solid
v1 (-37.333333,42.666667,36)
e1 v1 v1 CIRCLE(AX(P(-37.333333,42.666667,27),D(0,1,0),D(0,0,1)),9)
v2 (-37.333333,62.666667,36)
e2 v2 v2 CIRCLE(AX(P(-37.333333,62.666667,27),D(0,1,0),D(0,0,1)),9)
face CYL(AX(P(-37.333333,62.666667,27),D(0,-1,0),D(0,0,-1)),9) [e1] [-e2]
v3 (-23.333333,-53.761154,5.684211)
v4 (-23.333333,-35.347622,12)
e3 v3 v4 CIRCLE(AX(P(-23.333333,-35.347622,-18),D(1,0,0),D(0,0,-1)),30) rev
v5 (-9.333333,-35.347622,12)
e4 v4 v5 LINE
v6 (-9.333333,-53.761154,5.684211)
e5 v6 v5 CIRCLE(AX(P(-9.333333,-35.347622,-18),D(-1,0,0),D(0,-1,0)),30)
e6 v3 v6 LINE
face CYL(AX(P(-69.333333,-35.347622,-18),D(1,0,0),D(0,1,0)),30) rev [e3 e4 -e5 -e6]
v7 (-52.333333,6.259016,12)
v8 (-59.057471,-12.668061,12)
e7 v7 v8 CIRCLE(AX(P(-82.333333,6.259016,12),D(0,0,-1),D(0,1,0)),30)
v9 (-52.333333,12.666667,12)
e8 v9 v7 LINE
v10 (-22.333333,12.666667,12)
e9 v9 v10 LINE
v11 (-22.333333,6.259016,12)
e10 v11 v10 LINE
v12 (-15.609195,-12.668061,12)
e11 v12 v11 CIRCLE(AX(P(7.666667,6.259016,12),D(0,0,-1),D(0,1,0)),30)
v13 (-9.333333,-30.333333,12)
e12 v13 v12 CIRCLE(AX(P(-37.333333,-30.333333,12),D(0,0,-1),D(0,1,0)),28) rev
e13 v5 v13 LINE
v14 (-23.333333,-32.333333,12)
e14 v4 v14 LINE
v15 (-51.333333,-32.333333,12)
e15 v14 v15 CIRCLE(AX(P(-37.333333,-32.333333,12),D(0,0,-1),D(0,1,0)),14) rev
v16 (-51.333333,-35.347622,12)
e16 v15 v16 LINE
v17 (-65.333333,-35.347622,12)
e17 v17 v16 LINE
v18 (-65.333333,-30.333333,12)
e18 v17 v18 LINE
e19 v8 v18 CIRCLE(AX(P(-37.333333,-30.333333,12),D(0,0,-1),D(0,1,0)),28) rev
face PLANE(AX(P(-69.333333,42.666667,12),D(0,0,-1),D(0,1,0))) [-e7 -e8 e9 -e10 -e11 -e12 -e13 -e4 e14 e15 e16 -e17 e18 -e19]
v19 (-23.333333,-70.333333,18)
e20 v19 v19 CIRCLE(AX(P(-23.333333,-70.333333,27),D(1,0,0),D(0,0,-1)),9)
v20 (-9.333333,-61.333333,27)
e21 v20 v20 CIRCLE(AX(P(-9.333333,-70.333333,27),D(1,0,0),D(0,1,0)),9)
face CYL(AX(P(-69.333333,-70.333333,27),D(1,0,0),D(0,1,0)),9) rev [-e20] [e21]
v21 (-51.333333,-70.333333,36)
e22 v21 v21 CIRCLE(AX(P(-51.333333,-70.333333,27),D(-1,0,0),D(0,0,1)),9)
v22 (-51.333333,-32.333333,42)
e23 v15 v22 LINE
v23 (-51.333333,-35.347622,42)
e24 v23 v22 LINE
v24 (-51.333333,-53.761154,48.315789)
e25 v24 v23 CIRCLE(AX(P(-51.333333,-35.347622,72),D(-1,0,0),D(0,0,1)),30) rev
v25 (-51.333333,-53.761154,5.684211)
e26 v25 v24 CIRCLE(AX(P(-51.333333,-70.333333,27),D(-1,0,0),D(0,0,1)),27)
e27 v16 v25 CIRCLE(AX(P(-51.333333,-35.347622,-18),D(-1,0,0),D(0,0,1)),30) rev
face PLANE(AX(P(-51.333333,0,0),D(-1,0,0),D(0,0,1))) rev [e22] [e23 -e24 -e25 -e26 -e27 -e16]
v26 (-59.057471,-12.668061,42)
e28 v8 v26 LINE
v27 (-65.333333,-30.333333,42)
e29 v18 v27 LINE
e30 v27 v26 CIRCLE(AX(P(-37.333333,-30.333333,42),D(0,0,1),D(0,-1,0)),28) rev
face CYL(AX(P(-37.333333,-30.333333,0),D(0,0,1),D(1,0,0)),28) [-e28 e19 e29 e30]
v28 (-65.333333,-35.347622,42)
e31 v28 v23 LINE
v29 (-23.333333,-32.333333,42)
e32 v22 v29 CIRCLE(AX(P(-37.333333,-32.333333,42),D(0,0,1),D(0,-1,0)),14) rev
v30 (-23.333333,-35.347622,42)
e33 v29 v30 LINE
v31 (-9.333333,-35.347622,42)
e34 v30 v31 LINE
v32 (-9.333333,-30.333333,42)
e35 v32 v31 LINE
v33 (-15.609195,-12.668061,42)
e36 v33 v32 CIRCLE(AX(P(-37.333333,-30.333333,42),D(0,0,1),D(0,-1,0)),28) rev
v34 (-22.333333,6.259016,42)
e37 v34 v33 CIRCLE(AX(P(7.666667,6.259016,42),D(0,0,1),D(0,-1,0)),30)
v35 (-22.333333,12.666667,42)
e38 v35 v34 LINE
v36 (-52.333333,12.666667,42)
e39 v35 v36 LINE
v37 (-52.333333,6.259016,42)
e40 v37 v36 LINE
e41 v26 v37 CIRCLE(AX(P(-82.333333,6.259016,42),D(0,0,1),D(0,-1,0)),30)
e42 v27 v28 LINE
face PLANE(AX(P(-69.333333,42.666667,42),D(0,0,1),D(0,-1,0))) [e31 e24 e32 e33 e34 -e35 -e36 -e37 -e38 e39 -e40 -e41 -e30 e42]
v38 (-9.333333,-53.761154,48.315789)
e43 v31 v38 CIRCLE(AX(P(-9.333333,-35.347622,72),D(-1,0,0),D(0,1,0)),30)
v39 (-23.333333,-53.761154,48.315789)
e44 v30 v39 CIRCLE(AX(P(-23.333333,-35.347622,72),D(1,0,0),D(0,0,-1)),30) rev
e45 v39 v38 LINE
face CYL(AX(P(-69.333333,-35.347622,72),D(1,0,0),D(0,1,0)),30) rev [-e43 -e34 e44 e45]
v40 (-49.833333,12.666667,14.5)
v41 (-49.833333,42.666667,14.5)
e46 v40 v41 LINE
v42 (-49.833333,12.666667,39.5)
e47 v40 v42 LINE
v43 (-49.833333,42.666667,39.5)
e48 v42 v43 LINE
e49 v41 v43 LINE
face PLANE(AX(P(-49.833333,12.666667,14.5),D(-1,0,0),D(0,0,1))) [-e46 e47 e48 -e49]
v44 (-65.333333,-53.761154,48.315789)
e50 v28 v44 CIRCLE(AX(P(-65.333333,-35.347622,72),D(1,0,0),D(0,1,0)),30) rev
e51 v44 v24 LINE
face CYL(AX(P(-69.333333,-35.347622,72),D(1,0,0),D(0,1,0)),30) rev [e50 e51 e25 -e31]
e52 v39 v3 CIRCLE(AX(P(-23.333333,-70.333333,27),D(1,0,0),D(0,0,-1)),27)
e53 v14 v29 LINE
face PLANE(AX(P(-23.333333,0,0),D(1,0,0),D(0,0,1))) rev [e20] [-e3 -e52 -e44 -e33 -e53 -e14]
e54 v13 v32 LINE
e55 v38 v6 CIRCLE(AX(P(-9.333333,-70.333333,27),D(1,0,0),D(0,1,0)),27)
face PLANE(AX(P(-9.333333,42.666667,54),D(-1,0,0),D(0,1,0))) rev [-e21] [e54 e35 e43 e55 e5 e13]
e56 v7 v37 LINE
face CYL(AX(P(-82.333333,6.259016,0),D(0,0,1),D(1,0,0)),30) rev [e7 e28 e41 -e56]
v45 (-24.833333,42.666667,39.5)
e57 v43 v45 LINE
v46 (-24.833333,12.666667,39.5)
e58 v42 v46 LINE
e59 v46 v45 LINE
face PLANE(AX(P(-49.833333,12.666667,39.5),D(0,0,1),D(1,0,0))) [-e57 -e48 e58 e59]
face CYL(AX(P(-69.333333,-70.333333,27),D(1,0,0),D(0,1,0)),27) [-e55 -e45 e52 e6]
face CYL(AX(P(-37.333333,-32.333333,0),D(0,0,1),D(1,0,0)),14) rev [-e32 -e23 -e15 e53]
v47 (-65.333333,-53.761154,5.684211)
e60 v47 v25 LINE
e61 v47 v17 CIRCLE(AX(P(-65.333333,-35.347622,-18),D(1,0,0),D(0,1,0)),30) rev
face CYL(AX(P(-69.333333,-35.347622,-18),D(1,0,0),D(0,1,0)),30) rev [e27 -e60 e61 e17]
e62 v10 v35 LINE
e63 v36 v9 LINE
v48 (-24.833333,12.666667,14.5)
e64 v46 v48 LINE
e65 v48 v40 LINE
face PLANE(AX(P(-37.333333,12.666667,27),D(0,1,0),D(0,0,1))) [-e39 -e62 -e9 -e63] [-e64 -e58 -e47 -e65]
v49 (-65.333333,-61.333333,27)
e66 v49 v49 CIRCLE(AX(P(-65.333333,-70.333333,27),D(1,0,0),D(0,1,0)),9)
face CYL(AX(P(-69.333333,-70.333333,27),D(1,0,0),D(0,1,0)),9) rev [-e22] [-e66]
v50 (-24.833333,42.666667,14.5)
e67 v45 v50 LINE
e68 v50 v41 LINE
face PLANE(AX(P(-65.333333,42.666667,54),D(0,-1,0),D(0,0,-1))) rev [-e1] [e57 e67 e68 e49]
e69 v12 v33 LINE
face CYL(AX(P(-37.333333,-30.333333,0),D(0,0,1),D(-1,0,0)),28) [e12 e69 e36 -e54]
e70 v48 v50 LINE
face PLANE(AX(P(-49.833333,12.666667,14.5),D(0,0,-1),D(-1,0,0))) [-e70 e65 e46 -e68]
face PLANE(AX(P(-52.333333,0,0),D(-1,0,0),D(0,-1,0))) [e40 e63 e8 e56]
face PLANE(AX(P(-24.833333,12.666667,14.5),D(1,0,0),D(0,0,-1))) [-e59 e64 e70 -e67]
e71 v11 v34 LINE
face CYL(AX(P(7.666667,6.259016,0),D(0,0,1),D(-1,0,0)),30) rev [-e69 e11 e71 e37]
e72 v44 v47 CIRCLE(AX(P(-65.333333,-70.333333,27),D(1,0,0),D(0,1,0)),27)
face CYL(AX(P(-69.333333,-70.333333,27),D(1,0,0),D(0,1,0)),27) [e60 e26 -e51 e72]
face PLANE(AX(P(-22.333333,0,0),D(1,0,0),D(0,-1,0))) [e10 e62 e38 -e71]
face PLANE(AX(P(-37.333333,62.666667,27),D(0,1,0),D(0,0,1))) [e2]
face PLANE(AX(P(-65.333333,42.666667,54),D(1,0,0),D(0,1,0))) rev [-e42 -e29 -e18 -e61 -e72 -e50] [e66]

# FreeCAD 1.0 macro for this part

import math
import FreeCAD as App
import Part
import Sketcher

V = App.Vector
Q = App.Units.Quantity

doc = App.newDocument("Part")
body = doc.addObject("PartDesign::Body", "Body")

sketch1 = doc.addObject("Sketcher::SketchObject", "Sketch")
body.addObject(sketch1)
sketch1.AttachmentSupport = (doc.XY_Plane, [""])
sketch1.MapMode = "FlatFace"
sketch1.addGeometry(Part.LineSegment(V(-65, 43, 0), V(-65, -97, 0)), False)
sketch1.addGeometry(Part.LineSegment(V(-65, -97, 0), V(-9, -97, 0)), False)
sketch1.addGeometry(Part.LineSegment(V(-9, -97, 0), V(-9, 43, 0)), False)
sketch1.addGeometry(Part.LineSegment(V(-9, 43, 0), V(-65, 43, 0)), False)
sketch1.addConstraint(Sketcher.Constraint("Coincident", 0, 2, 1, 1))
sketch1.addConstraint(Sketcher.Constraint("Coincident", 1, 2, 2, 1))
sketch1.addConstraint(Sketcher.Constraint("Coincident", 2, 2, 3, 1))
sketch1.addConstraint(Sketcher.Constraint("Coincident", 3, 2, 0, 1))
sketch1.addConstraint(Sketcher.Constraint("Vertical", 0))
sketch1.addConstraint(Sketcher.Constraint("Horizontal", 1))
sketch1.addConstraint(Sketcher.Constraint("Vertical", 2))
sketch1.addConstraint(Sketcher.Constraint("Horizontal", 3))
sketch1.addConstraint(Sketcher.Constraint("DistanceX", 1, 1, 1, 2, Q("56 mm")))
sketch1.addConstraint(Sketcher.Constraint("DistanceY", 0, 2, 0, 1, Q("140 mm")))
sketch1.addConstraint(Sketcher.Constraint("DistanceX", 0, 2, -1, 1, Q("65.333333 mm")))
sketch1.addConstraint(Sketcher.Constraint("DistanceY", 0, 2, -1, 1, Q("97.333333 mm")))
pad1 = doc.addObject("PartDesign::Pad", "Pad")
body.addObject(pad1)
pad1.Profile = sketch1
pad1.Length = 54

sketch2 = doc.addObject("Sketcher::SketchObject", "Sketch001")
body.addObject(sketch2)
sketch2.AttachmentSupport = (doc.XY_Plane, [""])
sketch2.MapMode = "FlatFace"
sketch2.AttachmentOffset = App.Placement(V(0, 0, 54), App.Rotation())
sketch2.addGeometry(Part.LineSegment(V(-52, 6, 0), V(-52, 43, 0)), False)
sketch2.addGeometry(Part.LineSegment(V(-52, 43, 0), V(-65, 43, 0)), False)
sketch2.addGeometry(Part.LineSegment(V(-65, 43, 0), V(-65, -30, 0)), False)
sketch2.addGeometry(Part.ArcOfCircle(Part.Circle(V(-37, -30, 0), V(0, 0, 1), 28), math.radians(141), math.radians(180)), False)
sketch2.addGeometry(Part.ArcOfCircle(Part.Circle(V(-82, 6, 0), V(0, 0, 1), 30), math.radians(-39), math.radians(0)), False)
sketch2.addGeometry(Part.ArcOfCircle(Part.Circle(V(-37, -32, 0), V(0, 0, 1), 14), math.radians(90), math.radians(180)), False)
sketch2.addGeometry(Part.LineSegment(V(-51, -32, 0), V(-51, -97, 0)), False)
sketch2.addGeometry(Part.LineSegment(V(-51, -97, 0), V(-9, -97, 0)), False)
sketch2.addGeometry(Part.LineSegment(V(-9, -97, 0), V(-9, 43, 0)), False)
sketch2.addGeometry(Part.LineSegment(V(-9, 43, 0), V(-37, 43, 0)), False)
sketch2.addGeometry(Part.LineSegment(V(-37, 43, 0), V(-37, -18, 0)), False)
sketch2.addConstraint(Sketcher.Constraint("Coincident", 0, 2, 1, 1))
sketch2.addConstraint(Sketcher.Constraint("Coincident", 1, 2, 2, 1))
sketch2.addConstraint(Sketcher.Constraint("Tangent", 2, 2, 3, 2))
sketch2.addConstraint(Sketcher.Constraint("Tangent", 3, 1, 4, 1))
sketch2.addConstraint(Sketcher.Constraint("Tangent", 4, 2, 0, 1))
sketch2.addConstraint(Sketcher.Constraint("Tangent", 5, 2, 6, 1))
sketch2.addConstraint(Sketcher.Constraint("Coincident", 6, 2, 7, 1))
sketch2.addConstraint(Sketcher.Constraint("Coincident", 7, 2, 8, 1))
sketch2.addConstraint(Sketcher.Constraint("Coincident", 8, 2, 9, 1))
sketch2.addConstraint(Sketcher.Constraint("Coincident", 9, 2, 10, 1))
sketch2.addConstraint(Sketcher.Constraint("Coincident", 10, 2, 5, 1))
sketch2.addConstraint(Sketcher.Constraint("Vertical", 0))
sketch2.addConstraint(Sketcher.Constraint("Horizontal", 1))
sketch2.addConstraint(Sketcher.Constraint("Vertical", 2))
sketch2.addConstraint(Sketcher.Constraint("Vertical", 6))
sketch2.addConstraint(Sketcher.Constraint("Horizontal", 7))
sketch2.addConstraint(Sketcher.Constraint("Vertical", 8))
sketch2.addConstraint(Sketcher.Constraint("Horizontal", 9))
sketch2.addConstraint(Sketcher.Constraint("Vertical", 10))
sketch2.addConstraint(Sketcher.Constraint("Horizontal", 1, 2, 8, 2))
sketch2.addConstraint(Sketcher.Constraint("Vertical", 3, 3, 5, 3))
sketch2.addConstraint(Sketcher.Constraint("Vertical", 5, 3, 9, 2))
sketch2.addConstraint(Sketcher.Constraint("Radius", 3, Q("28 mm")))
sketch2.addConstraint(Sketcher.Constraint("Radius", 4, Q("30 mm")))
sketch2.addConstraint(Sketcher.Constraint("Radius", 5, Q("14 mm")))
sketch2.addConstraint(Sketcher.Constraint("DistanceX", 1, 2, 1, 1, Q("13 mm")))
sketch2.addConstraint(Sketcher.Constraint("DistanceX", 7, 1, 7, 2, Q("42 mm")))
sketch2.addConstraint(Sketcher.Constraint("DistanceY", 2, 2, 2, 1, Q("73 mm")))
sketch2.addConstraint(Sketcher.Constraint("DistanceY", 6, 2, 6, 1, Q("65 mm")))
sketch2.addConstraint(Sketcher.Constraint("DistanceY", 8, 1, 8, 2, Q("140 mm")))
sketch2.addConstraint(Sketcher.Constraint("DistanceX", 3, 1, -1, 1, Q("59.057471 mm")))
sketch2.addConstraint(Sketcher.Constraint("DistanceY", 3, 1, -1, 1, Q("12.668061 mm")))
pocket1 = doc.addObject("PartDesign::Pocket", "Pocket")
body.addObject(pocket1)
pocket1.Profile = sketch2
pocket1.Length = 54
body2 = doc.addObject("PartDesign::Body", "Body001")
doc.recompute()

body2.BaseFeature = body
doc.recompute()

mirroring = doc.addObject("Part::Mirroring", "Mirroring")
mirroring.Source = body
mirroring.Base = V(-37.333333, 0, 0)
mirroring.Normal = V(-1, 0, 0)
body3 = doc.addObject("PartDesign::Body", "Body002")
body3.BaseFeature = mirroring
boolean = doc.addObject("PartDesign::Boolean", "Boolean")
body2.addObject(boolean)
boolean.Type = "Fuse"
boolean.addObjects([body3])
doc.recompute()

sketch3 = doc.addObject("Sketcher::SketchObject", "Sketch002")
body2.addObject(sketch3)
sketch3.AttachmentSupport = (doc.getObject("YZ_Plane001"), [""])
sketch3.MapMode = "FlatFace"
sketch3.AttachmentOffset = App.Placement(V(0, 0, -9.333333), App.Rotation())
sketch3.addGeometry(Part.LineSegment(V(60, 71, 0), V(-114, 71, 0)), False)
sketch3.addGeometry(Part.LineSegment(V(-114, 71, 0), V(-114, -17, 0)), False)
sketch3.addGeometry(Part.LineSegment(V(-114, -17, 0), V(60, -17, 0)), False)
sketch3.addGeometry(Part.LineSegment(V(60, -17, 0), V(60, 71, 0)), False)
sketch3.addGeometry(Part.LineSegment(V(-35, 42, 0), V(43, 42, 0)), False)
sketch3.addGeometry(Part.LineSegment(V(43, 42, 0), V(43, 12, 0)), False)
sketch3.addGeometry(Part.LineSegment(V(43, 12, 0), V(-35, 12, 0)), False)
sketch3.addGeometry(Part.ArcOfCircle(Part.Circle(V(-35, -18, 0), V(0, 0, 1), 30), math.radians(90), math.radians(128)), False)
sketch3.addGeometry(Part.ArcOfCircle(Part.Circle(V(-70, 27, 0), V(0, 0, 1), 27), math.radians(52), math.radians(308)), False)
sketch3.addGeometry(Part.ArcOfCircle(Part.Circle(V(-35, 72, 0), V(0, 0, 1), 30), math.radians(-128), math.radians(-90)), False)
sketch3.addGeometry(Part.Circle(V(-70, 27, 0), V(0, 0, 1), 9), False)
sketch3.addConstraint(Sketcher.Constraint("Coincident", 0, 2, 1, 1))
sketch3.addConstraint(Sketcher.Constraint("Coincident", 1, 2, 2, 1))
sketch3.addConstraint(Sketcher.Constraint("Coincident", 2, 2, 3, 1))
sketch3.addConstraint(Sketcher.Constraint("Coincident", 3, 2, 0, 1))
sketch3.addConstraint(Sketcher.Constraint("Coincident", 4, 2, 5, 1))
sketch3.addConstraint(Sketcher.Constraint("Coincident", 5, 2, 6, 1))
sketch3.addConstraint(Sketcher.Constraint("Tangent", 6, 2, 7, 1))
sketch3.addConstraint(Sketcher.Constraint("Tangent", 7, 2, 8, 2))
sketch3.addConstraint(Sketcher.Constraint("Tangent", 8, 1, 9, 1))
sketch3.addConstraint(Sketcher.Constraint("Tangent", 9, 2, 4, 1))
sketch3.addConstraint(Sketcher.Constraint("Horizontal", 0))
sketch3.addConstraint(Sketcher.Constraint("Vertical", 1))
sketch3.addConstraint(Sketcher.Constraint("Horizontal", 2))
sketch3.addConstraint(Sketcher.Constraint("Vertical", 3))
sketch3.addConstraint(Sketcher.Constraint("Horizontal", 4))
sketch3.addConstraint(Sketcher.Constraint("Vertical", 5))
sketch3.addConstraint(Sketcher.Constraint("Horizontal", 6))
sketch3.addConstraint(Sketcher.Constraint("Coincident", 10, 3, 8, 3))
sketch3.addConstraint(Sketcher.Constraint("Equal", 7, 9))
sketch3.addConstraint(Sketcher.Constraint("Vertical", 7, 3, 9, 3))
sketch3.addConstraint(Sketcher.Constraint("Diameter", 10, Q("18 mm")))
sketch3.addConstraint(Sketcher.Constraint("Radius", 7, Q("30 mm")))
sketch3.addConstraint(Sketcher.Constraint("Radius", 8, Q("27 mm")))
sketch3.addConstraint(Sketcher.Constraint("DistanceY", 5, 2, 5, 1, Q("30 mm")))
sketch3.addConstraint(Sketcher.Constraint("DistanceY", 7, 3, -1, 1, Q("18 mm")))
sketch3.addConstraint(Sketcher.Constraint("DistanceX", 8, 3, 4, 2, Q("113 mm")))
sketch3.addConstraint(Sketcher.Constraint("DistanceX", 0, 2, 0, 1, Q("174.032 mm")))
sketch3.addConstraint(Sketcher.Constraint("DistanceY", 1, 2, 1, 1, Q("88.032 mm")))
sketch3.addConstraint(Sketcher.Constraint("DistanceX", 0, 2, -1, 1, Q("114.349 mm")))
sketch3.addConstraint(Sketcher.Constraint("DistanceY", -1, 1, 0, 2, Q("71.016 mm")))
sketch3.addConstraint(Sketcher.Constraint("DistanceX", 7, 3, -1, 1, Q("35.347622 mm")))
pocket2 = doc.addObject("PartDesign::Pocket", "Pocket001")
body2.addObject(pocket2)
pocket2.Profile = sketch3
pocket2.Length = 60

sketch4 = doc.addObject("Sketcher::SketchObject", "Sketch003")
body2.addObject(sketch4)
sketch4.AttachmentSupport = (doc.getObject("XZ_Plane001"), [""])
sketch4.MapMode = "FlatFace"
sketch4.AttachmentOffset = App.Placement(V(0, 0, -42.666667), App.Rotation())
sketch4.addGeometry(Part.LineSegment(V(-82, -17, 0), V(-82, 71, 0)), False)
sketch4.addGeometry(Part.LineSegment(V(-82, 71, 0), V(8, 71, 0)), False)
sketch4.addGeometry(Part.LineSegment(V(8, 71, 0), V(8, -17, 0)), False)
sketch4.addGeometry(Part.LineSegment(V(8, -17, 0), V(-82, -17, 0)), False)
sketch4.addGeometry(Part.LineSegment(V(-25, 40, 0), V(-50, 40, 0)), False)
sketch4.addGeometry(Part.LineSegment(V(-50, 40, 0), V(-50, 14, 0)), False)
sketch4.addGeometry(Part.LineSegment(V(-50, 14, 0), V(-25, 14, 0)), False)
sketch4.addGeometry(Part.LineSegment(V(-25, 14, 0), V(-25, 40, 0)), False)
sketch4.addConstraint(Sketcher.Constraint("Coincident", 0, 2, 1, 1))
sketch4.addConstraint(Sketcher.Constraint("Coincident", 1, 2, 2, 1))
sketch4.addConstraint(Sketcher.Constraint("Coincident", 2, 2, 3, 1))
sketch4.addConstraint(Sketcher.Constraint("Coincident", 3, 2, 0, 1))
sketch4.addConstraint(Sketcher.Constraint("Coincident", 4, 2, 5, 1))
sketch4.addConstraint(Sketcher.Constraint("Coincident", 5, 2, 6, 1))
sketch4.addConstraint(Sketcher.Constraint("Coincident", 6, 2, 7, 1))
sketch4.addConstraint(Sketcher.Constraint("Coincident", 7, 2, 4, 1))
sketch4.addConstraint(Sketcher.Constraint("Vertical", 0))
sketch4.addConstraint(Sketcher.Constraint("Horizontal", 1))
sketch4.addConstraint(Sketcher.Constraint("Vertical", 2))
sketch4.addConstraint(Sketcher.Constraint("Horizontal", 3))
sketch4.addConstraint(Sketcher.Constraint("Horizontal", 4))
sketch4.addConstraint(Sketcher.Constraint("Vertical", 5))
sketch4.addConstraint(Sketcher.Constraint("Horizontal", 6))
sketch4.addConstraint(Sketcher.Constraint("Vertical", 7))
sketch4.addConstraint(Sketcher.Constraint("Equal", 6, 5))
sketch4.addConstraint(Sketcher.Constraint("DistanceX", 4, 2, 4, 1, Q("25 mm")))
sketch4.addConstraint(Sketcher.Constraint("DistanceY", -1, 1, 4, 2, Q("39.5 mm")))
sketch4.addConstraint(Sketcher.Constraint("DistanceX", 1, 1, 1, 2, Q("90.032 mm")))
sketch4.addConstraint(Sketcher.Constraint("DistanceY", 0, 1, 0, 2, Q("88.032 mm")))
sketch4.addConstraint(Sketcher.Constraint("DistanceX", 0, 2, -1, 1, Q("82.349 mm")))
sketch4.addConstraint(Sketcher.Constraint("DistanceY", -1, 1, 0, 2, Q("71.016 mm")))
sketch4.addConstraint(Sketcher.Constraint("DistanceX", 4, 2, -1, 1, Q("49.833333 mm")))
pocket3 = doc.addObject("PartDesign::Pocket", "Pocket002")
body2.addObject(pocket3)
pocket3.Profile = sketch4
pocket3.Length = 30
pocket3.Reversed = True

sketch5 = doc.addObject("Sketcher::SketchObject", "Sketch004")
body2.addObject(sketch5)
sketch5.AttachmentSupport = (doc.getObject("XZ_Plane001"), [""])
sketch5.MapMode = "FlatFace"
sketch5.AttachmentOffset = App.Placement(V(0, 0, -42.666667), App.Rotation())
sketch5.addGeometry(Part.Circle(V(-37, 27, 0), V(0, 0, 1), 9), False)
sketch5.addConstraint(Sketcher.Constraint("Diameter", 0, Q("18 mm")))
sketch5.addConstraint(Sketcher.Constraint("DistanceY", -1, 1, 0, 3, Q("27 mm")))
sketch5.addConstraint(Sketcher.Constraint("DistanceX", 0, 3, -1, 1, Q("37.333333 mm")))
pad2 = doc.addObject("PartDesign::Pad", "Pad001")
body2.addObject(pad2)
pad2.Profile = sketch5
pad2.Length = 20
pad2.Reversed = True
mirroring.Visibility = False

doc.recompute()
